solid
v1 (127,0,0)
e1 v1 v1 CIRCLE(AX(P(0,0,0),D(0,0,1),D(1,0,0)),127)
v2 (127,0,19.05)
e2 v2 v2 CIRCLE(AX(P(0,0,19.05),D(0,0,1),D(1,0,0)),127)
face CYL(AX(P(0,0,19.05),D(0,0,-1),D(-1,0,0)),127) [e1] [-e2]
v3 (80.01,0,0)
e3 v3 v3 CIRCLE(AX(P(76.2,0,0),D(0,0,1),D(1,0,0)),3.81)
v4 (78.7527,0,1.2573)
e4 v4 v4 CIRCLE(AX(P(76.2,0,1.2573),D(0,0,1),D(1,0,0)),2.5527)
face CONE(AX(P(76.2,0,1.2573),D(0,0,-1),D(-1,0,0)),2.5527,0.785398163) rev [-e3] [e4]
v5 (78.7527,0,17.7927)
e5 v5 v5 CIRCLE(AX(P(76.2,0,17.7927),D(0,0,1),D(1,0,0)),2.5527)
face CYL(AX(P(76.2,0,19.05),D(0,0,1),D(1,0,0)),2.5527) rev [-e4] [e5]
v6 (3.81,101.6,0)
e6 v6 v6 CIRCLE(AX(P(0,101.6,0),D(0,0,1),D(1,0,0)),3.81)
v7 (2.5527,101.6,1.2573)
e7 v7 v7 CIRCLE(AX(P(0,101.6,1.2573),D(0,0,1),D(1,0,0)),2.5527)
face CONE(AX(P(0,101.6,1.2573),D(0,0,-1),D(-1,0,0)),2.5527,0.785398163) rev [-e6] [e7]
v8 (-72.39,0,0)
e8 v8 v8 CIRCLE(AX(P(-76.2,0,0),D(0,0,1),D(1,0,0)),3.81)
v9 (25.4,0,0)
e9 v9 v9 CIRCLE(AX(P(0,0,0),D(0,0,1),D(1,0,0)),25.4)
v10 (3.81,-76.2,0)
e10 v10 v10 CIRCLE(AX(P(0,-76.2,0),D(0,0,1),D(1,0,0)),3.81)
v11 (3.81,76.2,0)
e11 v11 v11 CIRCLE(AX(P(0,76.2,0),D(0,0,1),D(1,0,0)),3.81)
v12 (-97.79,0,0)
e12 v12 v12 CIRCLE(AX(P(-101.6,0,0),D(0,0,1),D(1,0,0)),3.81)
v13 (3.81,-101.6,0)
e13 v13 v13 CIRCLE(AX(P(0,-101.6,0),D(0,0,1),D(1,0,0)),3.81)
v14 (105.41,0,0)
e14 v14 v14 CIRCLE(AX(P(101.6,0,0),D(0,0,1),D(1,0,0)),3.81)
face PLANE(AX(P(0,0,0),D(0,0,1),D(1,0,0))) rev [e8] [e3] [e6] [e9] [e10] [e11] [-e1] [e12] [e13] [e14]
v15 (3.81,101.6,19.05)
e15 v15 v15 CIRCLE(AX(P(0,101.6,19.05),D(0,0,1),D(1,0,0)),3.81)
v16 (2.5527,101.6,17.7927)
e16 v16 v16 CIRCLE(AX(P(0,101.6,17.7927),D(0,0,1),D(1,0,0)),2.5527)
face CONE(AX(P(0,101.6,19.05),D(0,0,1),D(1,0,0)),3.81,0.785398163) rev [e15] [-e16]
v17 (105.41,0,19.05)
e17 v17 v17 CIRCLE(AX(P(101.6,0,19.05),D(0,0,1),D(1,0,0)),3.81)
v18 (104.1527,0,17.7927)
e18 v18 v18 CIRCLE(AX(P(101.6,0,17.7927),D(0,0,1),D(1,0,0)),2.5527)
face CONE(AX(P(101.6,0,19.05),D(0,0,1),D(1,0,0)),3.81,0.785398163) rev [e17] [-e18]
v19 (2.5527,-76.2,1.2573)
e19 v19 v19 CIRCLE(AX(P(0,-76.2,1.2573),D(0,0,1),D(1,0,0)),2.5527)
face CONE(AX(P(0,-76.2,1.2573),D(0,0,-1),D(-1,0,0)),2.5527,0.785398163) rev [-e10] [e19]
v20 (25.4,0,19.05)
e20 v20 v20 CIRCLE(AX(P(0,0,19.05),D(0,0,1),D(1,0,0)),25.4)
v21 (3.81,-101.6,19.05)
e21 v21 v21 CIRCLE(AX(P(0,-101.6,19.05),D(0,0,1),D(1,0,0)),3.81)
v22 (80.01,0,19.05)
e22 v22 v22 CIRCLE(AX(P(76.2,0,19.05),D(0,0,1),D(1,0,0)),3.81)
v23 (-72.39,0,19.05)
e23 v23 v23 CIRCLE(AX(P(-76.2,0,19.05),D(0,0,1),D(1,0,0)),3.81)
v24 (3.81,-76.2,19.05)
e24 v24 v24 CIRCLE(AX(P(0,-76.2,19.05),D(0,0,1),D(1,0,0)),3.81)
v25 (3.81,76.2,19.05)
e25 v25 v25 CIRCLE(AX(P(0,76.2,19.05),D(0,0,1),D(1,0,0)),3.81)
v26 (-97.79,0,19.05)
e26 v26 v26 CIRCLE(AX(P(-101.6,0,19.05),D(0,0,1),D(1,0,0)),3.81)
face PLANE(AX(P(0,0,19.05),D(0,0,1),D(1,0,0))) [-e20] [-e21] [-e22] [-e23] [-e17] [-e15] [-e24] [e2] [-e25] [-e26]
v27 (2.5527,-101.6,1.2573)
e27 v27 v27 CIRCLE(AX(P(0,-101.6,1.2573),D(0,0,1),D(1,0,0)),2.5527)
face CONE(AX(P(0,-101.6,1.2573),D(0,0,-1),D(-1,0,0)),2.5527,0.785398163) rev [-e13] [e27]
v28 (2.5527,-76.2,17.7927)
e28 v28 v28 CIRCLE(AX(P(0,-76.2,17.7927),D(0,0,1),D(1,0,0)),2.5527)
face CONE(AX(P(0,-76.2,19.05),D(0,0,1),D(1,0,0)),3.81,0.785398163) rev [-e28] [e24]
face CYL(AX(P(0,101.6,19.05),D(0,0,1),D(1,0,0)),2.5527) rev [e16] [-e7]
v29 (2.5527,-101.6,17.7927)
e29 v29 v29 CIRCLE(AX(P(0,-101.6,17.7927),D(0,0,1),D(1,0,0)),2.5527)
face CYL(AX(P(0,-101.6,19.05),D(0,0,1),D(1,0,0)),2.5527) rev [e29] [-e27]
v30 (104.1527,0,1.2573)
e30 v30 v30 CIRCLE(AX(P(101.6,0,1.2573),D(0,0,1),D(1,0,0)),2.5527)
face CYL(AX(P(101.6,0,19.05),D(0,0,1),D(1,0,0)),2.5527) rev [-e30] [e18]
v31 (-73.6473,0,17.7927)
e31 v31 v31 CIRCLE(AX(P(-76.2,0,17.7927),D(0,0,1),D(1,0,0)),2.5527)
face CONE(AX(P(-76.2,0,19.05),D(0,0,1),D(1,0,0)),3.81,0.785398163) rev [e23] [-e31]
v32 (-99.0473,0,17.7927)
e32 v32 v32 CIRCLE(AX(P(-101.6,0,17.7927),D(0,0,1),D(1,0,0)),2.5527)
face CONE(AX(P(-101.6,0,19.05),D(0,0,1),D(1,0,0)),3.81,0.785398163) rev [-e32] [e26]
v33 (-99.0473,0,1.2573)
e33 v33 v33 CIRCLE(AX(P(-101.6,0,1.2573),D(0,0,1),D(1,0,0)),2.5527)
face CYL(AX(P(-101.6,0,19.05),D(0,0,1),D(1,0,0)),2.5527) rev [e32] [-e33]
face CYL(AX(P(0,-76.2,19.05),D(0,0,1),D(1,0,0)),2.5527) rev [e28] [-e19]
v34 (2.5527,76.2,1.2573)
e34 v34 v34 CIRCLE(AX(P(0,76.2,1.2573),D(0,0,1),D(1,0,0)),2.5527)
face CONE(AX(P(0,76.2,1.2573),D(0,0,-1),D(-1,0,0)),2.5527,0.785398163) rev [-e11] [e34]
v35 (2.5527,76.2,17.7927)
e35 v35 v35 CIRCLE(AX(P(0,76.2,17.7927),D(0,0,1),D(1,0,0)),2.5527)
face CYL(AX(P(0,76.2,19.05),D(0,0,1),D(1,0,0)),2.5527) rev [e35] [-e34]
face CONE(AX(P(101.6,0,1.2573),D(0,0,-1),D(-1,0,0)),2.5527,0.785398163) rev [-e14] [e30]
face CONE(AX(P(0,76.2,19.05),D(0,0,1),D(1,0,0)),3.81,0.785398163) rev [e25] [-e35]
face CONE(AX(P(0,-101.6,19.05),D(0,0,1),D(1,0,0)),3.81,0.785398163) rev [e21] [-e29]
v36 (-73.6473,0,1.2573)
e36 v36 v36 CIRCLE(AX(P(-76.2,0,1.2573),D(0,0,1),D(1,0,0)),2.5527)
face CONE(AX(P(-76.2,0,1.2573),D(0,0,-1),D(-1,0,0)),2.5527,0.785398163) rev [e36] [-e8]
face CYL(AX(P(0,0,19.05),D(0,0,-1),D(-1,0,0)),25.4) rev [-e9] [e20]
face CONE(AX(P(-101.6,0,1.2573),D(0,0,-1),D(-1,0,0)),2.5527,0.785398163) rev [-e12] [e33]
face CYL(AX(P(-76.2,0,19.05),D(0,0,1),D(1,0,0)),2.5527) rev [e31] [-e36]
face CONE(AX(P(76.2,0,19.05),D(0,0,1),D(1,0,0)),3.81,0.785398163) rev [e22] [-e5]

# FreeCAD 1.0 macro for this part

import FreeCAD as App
import Part
import Sketcher
from FreeCAD import Vector
Q = App.Units.Quantity


def add_polygon(sketch, points):
    """Adds a closed chain of lines whose ends are joined by coincident constraints."""
    first, n = sketch.GeometryCount, len(points)
    for a, b in zip(points, points[1:] + points[:1]):
        sketch.addGeometry(Part.LineSegment(App.Vector(*a, 0), App.Vector(*b, 0)), False)
    for i in range(n):
        sketch.addConstraint(Sketcher.Constraint("Coincident", first + i, 2, first + (i + 1) % n, 1))

doc = App.newDocument("Part")
body = doc.addObject("PartDesign::Body", "Body")

sketch1 = body.newObject("Sketcher::SketchObject", "Sketch")
sketch1.AttachmentSupport = (doc.getObject("XY_Plane"), [""])
sketch1.MapMode = "FlatFace"
sketch1.addGeometry([
    Part.Circle(Vector(0, 0, 0), Vector(0, 0, 1), 127),
    Part.Circle(Vector(0, 0, 0), Vector(0, 0, 1), 25.4),
], False)
sketch1.addConstraint([
    Sketcher.Constraint("Coincident", 0, 3, -1, 1),
    Sketcher.Constraint("Coincident", 1, 3, -1, 1),
    Sketcher.Constraint("Diameter", 0, Q("10 in")),
    Sketcher.Constraint("Diameter", 1, Q("2 in")),
])
pad1 = body.newObject("PartDesign::Pad", "Pad")
pad1.Profile = sketch1
pad1.Length = Q("0.75 in")

sketch2 = body.newObject("Sketcher::SketchObject", "Sketch001")
sketch2.AttachmentSupport = (doc.getObject("YZ_Plane"), [""])
sketch2.MapMode = "FlatFace"
sketch2.AttachmentOffset = App.Placement(Vector(0, 0, -3 * 25.4), App.Rotation())
add_polygon(sketch2, [(0, 0), (0, 19.05), (-3.81, 19.05), (-2.5527, 17.7927), (-2.5527, 1.2573), (-3.81, 0)])
sketch2.addConstraint([
    Sketcher.Constraint("Vertical", 0),
    Sketcher.Constraint("Horizontal", 1),
    Sketcher.Constraint("Vertical", 3),
    Sketcher.Constraint("Horizontal", 5),
    Sketcher.Constraint("Coincident", 5, 2, -1, 1),
    Sketcher.Constraint("Perpendicular", 2, 4),
    Sketcher.Constraint("Vertical", 1, 2, 4, 2),
    Sketcher.Constraint("Equal", 2, 4),
    Sketcher.Constraint("DistanceX", 1, 2, 1, 1, Q("0.15 in")),
    Sketcher.Constraint("DistanceY", 0, 1, 0, 2, Q("0.75 in")),
    Sketcher.Constraint("DistanceY", 3, 2, 3, 1, Q("0.651 in")),
])
groove = body.newObject("PartDesign::Groove", "Groove")
groove.Profile = sketch2
groove.ReferenceAxis = (sketch2, ["V_Axis"])
groove.Angle = 360
doc.recompute()

datumline = body.newObject("PartDesign::Line", "DatumLine")
datumline.Placement = App.Placement(Vector(0, 0, 0), App.Rotation(Vector(0, 0, 1), Vector(0.6, 0.8, 0)))
linearpattern = body.newObject("PartDesign::LinearPattern", "LinearPattern")
linearpattern.Originals = [groove]
linearpattern.Direction = (datumline, [""])
linearpattern.Mode = "offset"
linearpattern.Offset = Q("5 in")
linearpattern.Occurrences = 2
body.Tip = linearpattern
doc.recompute()

datumline2 = body.newObject("PartDesign::Line", "DatumLine001")
datumline2.Placement = App.Placement(Vector(0, 0, 0), App.Rotation(Vector(0, 0, 1), Vector(0.707106781, 0.707106781, 0)))
linearpattern2 = body.newObject("PartDesign::LinearPattern", "LinearPattern001")
linearpattern2.Originals = [groove]
linearpattern2.Direction = (datumline2, [""])
linearpattern2.Mode = "offset"
linearpattern2.Offset = 107.763073
linearpattern2.Occurrences = 2
body.Tip = linearpattern2
doc.recompute()

linearpattern3 = body.newObject("PartDesign::LinearPattern", "LinearPattern002")
linearpattern3.Originals = [groove]
linearpattern3.Direction = (doc.getObject("X_Axis"), [""])
linearpattern3.Mode = "offset"
linearpattern3.Offset = Q("7 in")
linearpattern3.Occurrences = 2
body.Tip = linearpattern3
doc.recompute()

linearpattern4 = body.newObject("PartDesign::LinearPattern", "LinearPattern003")
linearpattern4.Originals = [groove]
linearpattern4.Direction = (doc.getObject("X_Axis"), [""])
linearpattern4.Mode = "offset"
linearpattern4.Offset = Q("6 in")
linearpattern4.Occurrences = 2
body.Tip = linearpattern4
doc.recompute()

datumline3 = body.newObject("PartDesign::Line", "DatumLine002")
datumline3.Placement = App.Placement(Vector(0, 0, 0), App.Rotation(Vector(0, 0, 1), Vector(0.6, -0.8, 0)))
linearpattern5 = body.newObject("PartDesign::LinearPattern", "LinearPattern004")
linearpattern5.Originals = [groove]
linearpattern5.Direction = (datumline3, [""])
linearpattern5.Mode = "offset"
linearpattern5.Offset = Q("5 in")
linearpattern5.Occurrences = 2
body.Tip = linearpattern5
doc.recompute()

datumline4 = body.newObject("PartDesign::Line", "DatumLine003")
datumline4.Placement = App.Placement(Vector(0, 0, 0), App.Rotation(Vector(0, 0, 1), Vector(0.707106781, -0.707106781, 0)))
linearpattern6 = body.newObject("PartDesign::LinearPattern", "LinearPattern005")
linearpattern6.Originals = [groove]
linearpattern6.Direction = (datumline4, [""])
linearpattern6.Mode = "offset"
linearpattern6.Offset = 107.763073
linearpattern6.Occurrences = 2
body.Tip = linearpattern6
doc.recompute()

linearpattern7 = body.newObject("PartDesign::LinearPattern", "LinearPattern006")
linearpattern7.Originals = [groove]
linearpattern7.Direction = (doc.getObject("X_Axis"), [""])
linearpattern7.Mode = "offset"
linearpattern7.Offset = Q("1 in")
linearpattern7.Occurrences = 2
linearpattern7.Reversed = True
body.Tip = linearpattern7

doc.recompute()
